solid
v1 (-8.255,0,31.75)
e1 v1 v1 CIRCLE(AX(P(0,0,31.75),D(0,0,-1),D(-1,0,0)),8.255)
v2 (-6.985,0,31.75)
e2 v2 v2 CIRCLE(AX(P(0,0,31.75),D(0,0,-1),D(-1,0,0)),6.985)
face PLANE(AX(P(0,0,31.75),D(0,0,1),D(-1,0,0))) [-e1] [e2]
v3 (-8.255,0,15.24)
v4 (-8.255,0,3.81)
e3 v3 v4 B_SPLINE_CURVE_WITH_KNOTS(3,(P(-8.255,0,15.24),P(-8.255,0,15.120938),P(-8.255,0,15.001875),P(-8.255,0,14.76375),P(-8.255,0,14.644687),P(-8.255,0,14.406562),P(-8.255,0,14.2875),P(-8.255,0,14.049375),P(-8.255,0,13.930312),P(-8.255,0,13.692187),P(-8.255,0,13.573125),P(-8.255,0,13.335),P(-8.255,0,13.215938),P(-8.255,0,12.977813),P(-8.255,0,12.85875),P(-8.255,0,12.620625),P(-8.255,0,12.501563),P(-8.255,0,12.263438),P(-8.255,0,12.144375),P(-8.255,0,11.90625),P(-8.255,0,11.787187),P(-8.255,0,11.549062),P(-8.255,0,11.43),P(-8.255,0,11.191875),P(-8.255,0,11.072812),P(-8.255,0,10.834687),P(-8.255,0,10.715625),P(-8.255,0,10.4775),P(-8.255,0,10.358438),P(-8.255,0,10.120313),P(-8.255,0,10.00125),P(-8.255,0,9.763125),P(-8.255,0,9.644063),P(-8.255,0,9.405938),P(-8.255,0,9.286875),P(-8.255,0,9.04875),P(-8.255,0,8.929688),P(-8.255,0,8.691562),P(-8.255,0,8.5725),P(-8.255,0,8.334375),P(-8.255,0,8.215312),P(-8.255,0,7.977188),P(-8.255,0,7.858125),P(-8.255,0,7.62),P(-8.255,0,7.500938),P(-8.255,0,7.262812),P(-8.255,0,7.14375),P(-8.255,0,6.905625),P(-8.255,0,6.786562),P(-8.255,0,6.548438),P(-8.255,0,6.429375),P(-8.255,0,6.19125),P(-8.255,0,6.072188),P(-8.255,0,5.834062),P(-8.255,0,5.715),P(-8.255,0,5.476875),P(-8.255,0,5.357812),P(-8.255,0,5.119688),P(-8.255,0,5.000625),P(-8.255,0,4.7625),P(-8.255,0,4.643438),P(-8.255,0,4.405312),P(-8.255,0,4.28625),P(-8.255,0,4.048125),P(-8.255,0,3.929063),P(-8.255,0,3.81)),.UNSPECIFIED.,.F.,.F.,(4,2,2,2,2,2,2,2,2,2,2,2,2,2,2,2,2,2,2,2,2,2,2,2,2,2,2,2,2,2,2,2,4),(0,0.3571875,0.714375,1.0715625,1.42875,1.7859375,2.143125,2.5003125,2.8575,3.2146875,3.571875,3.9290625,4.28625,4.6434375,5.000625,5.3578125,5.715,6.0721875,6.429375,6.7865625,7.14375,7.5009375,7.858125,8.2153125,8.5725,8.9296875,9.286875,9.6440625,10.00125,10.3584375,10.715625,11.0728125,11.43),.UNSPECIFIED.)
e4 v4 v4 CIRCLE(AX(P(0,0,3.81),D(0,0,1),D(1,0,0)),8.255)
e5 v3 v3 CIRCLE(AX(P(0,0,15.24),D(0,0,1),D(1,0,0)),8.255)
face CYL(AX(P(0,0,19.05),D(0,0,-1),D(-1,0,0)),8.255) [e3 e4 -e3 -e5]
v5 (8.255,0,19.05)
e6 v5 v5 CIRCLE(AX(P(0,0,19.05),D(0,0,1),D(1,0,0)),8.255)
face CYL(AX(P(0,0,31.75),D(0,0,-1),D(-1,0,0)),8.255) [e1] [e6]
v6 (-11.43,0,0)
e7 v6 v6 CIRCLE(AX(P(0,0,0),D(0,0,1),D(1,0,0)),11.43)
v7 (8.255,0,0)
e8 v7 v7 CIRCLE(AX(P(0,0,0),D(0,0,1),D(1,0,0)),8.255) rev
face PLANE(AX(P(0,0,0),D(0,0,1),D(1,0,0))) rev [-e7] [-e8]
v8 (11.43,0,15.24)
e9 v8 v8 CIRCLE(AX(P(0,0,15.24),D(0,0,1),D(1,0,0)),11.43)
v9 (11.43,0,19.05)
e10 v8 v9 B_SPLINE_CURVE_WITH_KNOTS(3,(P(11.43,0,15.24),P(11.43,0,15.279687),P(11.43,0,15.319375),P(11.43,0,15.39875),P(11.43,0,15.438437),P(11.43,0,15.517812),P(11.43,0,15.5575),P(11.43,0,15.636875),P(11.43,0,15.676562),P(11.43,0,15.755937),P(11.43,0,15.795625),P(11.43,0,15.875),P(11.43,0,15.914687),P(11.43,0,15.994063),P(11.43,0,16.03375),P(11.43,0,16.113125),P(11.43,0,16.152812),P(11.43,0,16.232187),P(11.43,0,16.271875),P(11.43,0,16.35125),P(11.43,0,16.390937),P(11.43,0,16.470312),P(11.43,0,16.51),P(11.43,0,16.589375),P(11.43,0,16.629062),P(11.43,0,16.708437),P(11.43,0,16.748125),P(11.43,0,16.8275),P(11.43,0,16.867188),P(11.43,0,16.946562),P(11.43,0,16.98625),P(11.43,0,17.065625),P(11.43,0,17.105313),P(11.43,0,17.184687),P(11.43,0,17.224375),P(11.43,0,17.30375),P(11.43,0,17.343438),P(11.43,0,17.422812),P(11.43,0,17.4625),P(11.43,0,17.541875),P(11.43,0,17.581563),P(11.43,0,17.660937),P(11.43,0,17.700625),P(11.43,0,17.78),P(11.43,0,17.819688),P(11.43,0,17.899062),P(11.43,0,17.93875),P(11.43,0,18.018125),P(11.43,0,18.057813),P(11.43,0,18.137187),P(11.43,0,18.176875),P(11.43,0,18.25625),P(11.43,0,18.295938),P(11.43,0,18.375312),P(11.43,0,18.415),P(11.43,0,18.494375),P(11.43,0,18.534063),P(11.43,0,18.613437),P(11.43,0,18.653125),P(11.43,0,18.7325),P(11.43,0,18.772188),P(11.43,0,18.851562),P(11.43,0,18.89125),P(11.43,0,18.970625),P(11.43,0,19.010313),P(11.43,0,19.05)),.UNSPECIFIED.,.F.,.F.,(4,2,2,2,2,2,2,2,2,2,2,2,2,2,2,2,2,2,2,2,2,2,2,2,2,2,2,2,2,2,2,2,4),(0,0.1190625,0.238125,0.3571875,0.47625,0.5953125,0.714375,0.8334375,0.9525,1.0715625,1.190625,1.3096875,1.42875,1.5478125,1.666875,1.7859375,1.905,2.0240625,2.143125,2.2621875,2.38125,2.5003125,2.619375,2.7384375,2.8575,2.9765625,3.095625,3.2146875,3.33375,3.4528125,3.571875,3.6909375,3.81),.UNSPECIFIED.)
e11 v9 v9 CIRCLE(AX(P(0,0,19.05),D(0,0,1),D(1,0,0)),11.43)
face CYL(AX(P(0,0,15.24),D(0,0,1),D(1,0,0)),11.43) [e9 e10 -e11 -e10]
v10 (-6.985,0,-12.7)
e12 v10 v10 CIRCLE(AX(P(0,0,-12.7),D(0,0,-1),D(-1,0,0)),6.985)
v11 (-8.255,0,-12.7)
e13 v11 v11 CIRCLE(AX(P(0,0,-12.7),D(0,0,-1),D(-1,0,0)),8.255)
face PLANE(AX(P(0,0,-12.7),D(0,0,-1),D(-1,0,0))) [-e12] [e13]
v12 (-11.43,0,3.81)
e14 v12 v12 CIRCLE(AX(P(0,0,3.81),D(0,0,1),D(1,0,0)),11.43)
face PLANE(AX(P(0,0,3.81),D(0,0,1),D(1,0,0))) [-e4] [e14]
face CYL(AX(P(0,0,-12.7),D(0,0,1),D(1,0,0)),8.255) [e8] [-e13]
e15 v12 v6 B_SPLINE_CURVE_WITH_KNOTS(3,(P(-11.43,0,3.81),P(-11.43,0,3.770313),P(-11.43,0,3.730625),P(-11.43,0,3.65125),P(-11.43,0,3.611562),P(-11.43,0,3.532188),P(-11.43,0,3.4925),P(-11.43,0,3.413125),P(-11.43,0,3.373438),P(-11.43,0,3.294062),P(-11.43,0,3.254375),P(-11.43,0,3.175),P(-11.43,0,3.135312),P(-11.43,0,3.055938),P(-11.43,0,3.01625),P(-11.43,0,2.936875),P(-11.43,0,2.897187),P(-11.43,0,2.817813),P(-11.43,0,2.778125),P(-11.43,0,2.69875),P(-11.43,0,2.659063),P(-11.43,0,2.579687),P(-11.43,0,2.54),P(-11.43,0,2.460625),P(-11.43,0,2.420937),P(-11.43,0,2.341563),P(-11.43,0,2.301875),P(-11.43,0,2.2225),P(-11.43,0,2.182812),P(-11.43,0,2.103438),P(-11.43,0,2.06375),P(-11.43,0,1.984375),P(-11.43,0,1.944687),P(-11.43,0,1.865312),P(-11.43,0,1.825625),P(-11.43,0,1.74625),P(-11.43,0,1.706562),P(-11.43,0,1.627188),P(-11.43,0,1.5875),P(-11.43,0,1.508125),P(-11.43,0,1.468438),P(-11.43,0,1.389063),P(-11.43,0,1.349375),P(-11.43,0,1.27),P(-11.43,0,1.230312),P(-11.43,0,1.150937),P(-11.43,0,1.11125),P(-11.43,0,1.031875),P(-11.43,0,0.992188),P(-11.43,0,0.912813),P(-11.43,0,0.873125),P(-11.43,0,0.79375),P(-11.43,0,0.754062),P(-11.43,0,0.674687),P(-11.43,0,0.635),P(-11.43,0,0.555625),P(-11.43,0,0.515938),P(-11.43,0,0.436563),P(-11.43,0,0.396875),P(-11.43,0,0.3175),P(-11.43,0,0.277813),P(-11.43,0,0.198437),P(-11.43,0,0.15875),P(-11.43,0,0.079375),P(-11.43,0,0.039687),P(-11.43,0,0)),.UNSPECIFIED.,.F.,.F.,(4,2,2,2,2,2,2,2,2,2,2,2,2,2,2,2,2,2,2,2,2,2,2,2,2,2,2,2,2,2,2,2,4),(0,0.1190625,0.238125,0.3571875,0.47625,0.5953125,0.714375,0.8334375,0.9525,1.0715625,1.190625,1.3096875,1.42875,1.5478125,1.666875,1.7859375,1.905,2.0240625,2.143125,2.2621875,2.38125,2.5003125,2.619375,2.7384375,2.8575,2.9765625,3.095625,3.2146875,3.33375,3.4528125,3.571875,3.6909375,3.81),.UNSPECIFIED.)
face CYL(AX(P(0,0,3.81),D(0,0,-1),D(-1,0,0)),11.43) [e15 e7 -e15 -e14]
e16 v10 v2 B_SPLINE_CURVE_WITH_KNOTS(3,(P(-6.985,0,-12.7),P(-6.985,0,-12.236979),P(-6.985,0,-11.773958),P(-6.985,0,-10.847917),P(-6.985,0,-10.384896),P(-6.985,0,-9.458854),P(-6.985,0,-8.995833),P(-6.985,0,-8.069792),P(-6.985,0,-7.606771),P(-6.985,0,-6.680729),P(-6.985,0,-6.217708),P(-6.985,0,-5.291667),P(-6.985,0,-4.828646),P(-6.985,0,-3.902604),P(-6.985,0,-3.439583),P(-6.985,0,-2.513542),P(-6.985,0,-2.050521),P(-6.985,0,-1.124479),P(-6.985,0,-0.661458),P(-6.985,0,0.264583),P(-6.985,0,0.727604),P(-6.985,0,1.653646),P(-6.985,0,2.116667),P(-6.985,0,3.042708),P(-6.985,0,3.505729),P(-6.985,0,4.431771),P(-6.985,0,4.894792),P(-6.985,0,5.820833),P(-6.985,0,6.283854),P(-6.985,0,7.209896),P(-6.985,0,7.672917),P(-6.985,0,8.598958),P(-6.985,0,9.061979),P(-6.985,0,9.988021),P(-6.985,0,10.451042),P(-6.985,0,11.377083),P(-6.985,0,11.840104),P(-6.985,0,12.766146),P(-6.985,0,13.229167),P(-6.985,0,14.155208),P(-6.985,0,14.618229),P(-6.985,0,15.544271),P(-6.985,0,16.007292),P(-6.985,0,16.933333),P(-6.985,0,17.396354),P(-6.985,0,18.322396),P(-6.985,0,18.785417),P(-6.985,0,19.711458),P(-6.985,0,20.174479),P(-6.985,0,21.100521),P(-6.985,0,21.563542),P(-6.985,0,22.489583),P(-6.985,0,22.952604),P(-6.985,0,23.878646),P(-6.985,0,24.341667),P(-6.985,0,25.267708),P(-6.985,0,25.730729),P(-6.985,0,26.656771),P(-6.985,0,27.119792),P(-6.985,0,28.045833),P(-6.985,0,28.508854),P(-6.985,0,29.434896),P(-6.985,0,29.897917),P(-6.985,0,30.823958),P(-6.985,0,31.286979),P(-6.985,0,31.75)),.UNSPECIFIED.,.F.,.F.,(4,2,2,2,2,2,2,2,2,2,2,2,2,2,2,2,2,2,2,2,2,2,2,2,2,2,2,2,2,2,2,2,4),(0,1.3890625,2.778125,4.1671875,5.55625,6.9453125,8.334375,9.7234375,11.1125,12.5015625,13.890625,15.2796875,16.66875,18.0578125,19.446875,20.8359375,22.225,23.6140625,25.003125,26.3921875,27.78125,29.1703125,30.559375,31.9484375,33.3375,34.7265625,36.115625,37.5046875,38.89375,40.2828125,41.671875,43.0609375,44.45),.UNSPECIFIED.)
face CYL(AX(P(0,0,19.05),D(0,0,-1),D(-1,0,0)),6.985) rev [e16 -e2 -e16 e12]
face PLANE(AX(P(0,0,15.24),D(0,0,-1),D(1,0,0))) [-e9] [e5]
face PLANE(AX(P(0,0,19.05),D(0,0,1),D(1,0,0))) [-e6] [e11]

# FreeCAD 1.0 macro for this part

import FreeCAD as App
import Part
import Sketcher
Q = App.Units.Quantity

doc = App.newDocument("Part")
body = doc.addObject("PartDesign::Body", "Body")

# Sketch on XY plane
sketch1 = doc.addObject("Sketcher::SketchObject", "Sketch")
body.addObject(sketch1)
sketch1.AttachmentSupport = (doc.XY_Plane, [""])
sketch1.MapMode = "FlatFace"
sketch1.addGeometry([
    Part.Circle(App.Vector(0, 0, 0), App.Vector(0, 0, 1), 8),
    Part.Circle(App.Vector(0, 0, 0), App.Vector(0, 0, 1), 7),
], False)
sketch1.addConstraint([
    Sketcher.Constraint("Coincident", 0, 3, -1, 1),
    Sketcher.Constraint("Coincident", 1, 3, -1, 1),
    Sketcher.Constraint("Diameter", 0, Q("0.65 in")),
    Sketcher.Constraint("Diameter", 1, Q("0.55 in")),
])
pad1 = doc.addObject("PartDesign::Pad", "Pad")
body.addObject(pad1)
pad1.Profile = sketch1
pad1.Length = Q("0.75 in")

# Sketch on XY plane
sketch2 = doc.addObject("Sketcher::SketchObject", "Sketch001")
body.addObject(sketch2)
sketch2.AttachmentSupport = (doc.XY_Plane, [""])
sketch2.MapMode = "FlatFace"
sketch2.addGeometry([
    Part.Circle(App.Vector(0, 0, 0), App.Vector(0, 0, 1), 11),
    Part.Circle(App.Vector(0, 0, 0), App.Vector(0, 0, 1), 8),
], False)
sketch2.addConstraint([
    Sketcher.Constraint("Coincident", 0, 3, -1, 1),
    Sketcher.Constraint("Coincident", 1, 3, -1, 1),
    Sketcher.Constraint("Diameter", 0, Q("0.9 in")),
    Sketcher.Constraint("Diameter", 1, Q("0.65 in")),
])
pad2 = doc.addObject("PartDesign::Pad", "Pad001")
body.addObject(pad2)
pad2.Profile = sketch2
pad2.Length = Q("0.15 in")

# Sketch on XY plane
sketch3 = doc.addObject("Sketcher::SketchObject", "Sketch002")
body.addObject(sketch3)
sketch3.AttachmentSupport = (doc.XY_Plane, [""])
sketch3.MapMode = "FlatFace"
sketch3.AttachmentOffset = App.Placement(App.Vector(0, 0, -0.5 * 25.4), App.Rotation())
sketch3.addGeometry([
    Part.Circle(App.Vector(0, 0, 0), App.Vector(0, 0, 1), 8),
    Part.Circle(App.Vector(0, 0, 0), App.Vector(0, 0, 1), 7),
], False)
sketch3.addConstraint([
    Sketcher.Constraint("Coincident", 0, 3, -1, 1),
    Sketcher.Constraint("Coincident", 1, 3, -1, 1),
    Sketcher.Constraint("Diameter", 0, Q("0.65 in")),
    Sketcher.Constraint("Diameter", 1, Q("0.55 in")),
])
pad3 = doc.addObject("PartDesign::Pad", "Pad002")
body.addObject(pad3)
pad3.Profile = sketch3
pad3.Length = Q("0.5 in")
doc.recompute()

datumplane = doc.addObject("PartDesign::Plane", "DatumPlane")
body.addObject(datumplane)
datumplane.AttachmentSupport = (doc.XY_Plane, [""])
datumplane.MapMode = "FlatFace"
datumplane.AttachmentOffset = App.Placement(App.Vector(0, 0, 0.375 * 25.4), App.Rotation())
mirrored = doc.addObject("PartDesign::Mirrored", "Mirrored")
body.addObject(mirrored)
mirrored.Originals = [pad2]
mirrored.MirrorPlane = (datumplane, [""])
body.Tip = mirrored
doc.recompute()

datumplane2 = doc.addObject("PartDesign::Plane", "DatumPlane001")
body.addObject(datumplane2)
datumplane2.AttachmentSupport = (doc.XY_Plane, [""])
datumplane2.MapMode = "FlatFace"
datumplane2.AttachmentOffset = App.Placement(App.Vector(0, 0, 0.375 * 25.4), App.Rotation())
mirrored2 = doc.addObject("PartDesign::Mirrored", "Mirrored001")
body.addObject(mirrored2)
mirrored2.Originals = [pad3]
mirrored2.MirrorPlane = (datumplane2, [""])
body.Tip = mirrored2

doc.recompute()
